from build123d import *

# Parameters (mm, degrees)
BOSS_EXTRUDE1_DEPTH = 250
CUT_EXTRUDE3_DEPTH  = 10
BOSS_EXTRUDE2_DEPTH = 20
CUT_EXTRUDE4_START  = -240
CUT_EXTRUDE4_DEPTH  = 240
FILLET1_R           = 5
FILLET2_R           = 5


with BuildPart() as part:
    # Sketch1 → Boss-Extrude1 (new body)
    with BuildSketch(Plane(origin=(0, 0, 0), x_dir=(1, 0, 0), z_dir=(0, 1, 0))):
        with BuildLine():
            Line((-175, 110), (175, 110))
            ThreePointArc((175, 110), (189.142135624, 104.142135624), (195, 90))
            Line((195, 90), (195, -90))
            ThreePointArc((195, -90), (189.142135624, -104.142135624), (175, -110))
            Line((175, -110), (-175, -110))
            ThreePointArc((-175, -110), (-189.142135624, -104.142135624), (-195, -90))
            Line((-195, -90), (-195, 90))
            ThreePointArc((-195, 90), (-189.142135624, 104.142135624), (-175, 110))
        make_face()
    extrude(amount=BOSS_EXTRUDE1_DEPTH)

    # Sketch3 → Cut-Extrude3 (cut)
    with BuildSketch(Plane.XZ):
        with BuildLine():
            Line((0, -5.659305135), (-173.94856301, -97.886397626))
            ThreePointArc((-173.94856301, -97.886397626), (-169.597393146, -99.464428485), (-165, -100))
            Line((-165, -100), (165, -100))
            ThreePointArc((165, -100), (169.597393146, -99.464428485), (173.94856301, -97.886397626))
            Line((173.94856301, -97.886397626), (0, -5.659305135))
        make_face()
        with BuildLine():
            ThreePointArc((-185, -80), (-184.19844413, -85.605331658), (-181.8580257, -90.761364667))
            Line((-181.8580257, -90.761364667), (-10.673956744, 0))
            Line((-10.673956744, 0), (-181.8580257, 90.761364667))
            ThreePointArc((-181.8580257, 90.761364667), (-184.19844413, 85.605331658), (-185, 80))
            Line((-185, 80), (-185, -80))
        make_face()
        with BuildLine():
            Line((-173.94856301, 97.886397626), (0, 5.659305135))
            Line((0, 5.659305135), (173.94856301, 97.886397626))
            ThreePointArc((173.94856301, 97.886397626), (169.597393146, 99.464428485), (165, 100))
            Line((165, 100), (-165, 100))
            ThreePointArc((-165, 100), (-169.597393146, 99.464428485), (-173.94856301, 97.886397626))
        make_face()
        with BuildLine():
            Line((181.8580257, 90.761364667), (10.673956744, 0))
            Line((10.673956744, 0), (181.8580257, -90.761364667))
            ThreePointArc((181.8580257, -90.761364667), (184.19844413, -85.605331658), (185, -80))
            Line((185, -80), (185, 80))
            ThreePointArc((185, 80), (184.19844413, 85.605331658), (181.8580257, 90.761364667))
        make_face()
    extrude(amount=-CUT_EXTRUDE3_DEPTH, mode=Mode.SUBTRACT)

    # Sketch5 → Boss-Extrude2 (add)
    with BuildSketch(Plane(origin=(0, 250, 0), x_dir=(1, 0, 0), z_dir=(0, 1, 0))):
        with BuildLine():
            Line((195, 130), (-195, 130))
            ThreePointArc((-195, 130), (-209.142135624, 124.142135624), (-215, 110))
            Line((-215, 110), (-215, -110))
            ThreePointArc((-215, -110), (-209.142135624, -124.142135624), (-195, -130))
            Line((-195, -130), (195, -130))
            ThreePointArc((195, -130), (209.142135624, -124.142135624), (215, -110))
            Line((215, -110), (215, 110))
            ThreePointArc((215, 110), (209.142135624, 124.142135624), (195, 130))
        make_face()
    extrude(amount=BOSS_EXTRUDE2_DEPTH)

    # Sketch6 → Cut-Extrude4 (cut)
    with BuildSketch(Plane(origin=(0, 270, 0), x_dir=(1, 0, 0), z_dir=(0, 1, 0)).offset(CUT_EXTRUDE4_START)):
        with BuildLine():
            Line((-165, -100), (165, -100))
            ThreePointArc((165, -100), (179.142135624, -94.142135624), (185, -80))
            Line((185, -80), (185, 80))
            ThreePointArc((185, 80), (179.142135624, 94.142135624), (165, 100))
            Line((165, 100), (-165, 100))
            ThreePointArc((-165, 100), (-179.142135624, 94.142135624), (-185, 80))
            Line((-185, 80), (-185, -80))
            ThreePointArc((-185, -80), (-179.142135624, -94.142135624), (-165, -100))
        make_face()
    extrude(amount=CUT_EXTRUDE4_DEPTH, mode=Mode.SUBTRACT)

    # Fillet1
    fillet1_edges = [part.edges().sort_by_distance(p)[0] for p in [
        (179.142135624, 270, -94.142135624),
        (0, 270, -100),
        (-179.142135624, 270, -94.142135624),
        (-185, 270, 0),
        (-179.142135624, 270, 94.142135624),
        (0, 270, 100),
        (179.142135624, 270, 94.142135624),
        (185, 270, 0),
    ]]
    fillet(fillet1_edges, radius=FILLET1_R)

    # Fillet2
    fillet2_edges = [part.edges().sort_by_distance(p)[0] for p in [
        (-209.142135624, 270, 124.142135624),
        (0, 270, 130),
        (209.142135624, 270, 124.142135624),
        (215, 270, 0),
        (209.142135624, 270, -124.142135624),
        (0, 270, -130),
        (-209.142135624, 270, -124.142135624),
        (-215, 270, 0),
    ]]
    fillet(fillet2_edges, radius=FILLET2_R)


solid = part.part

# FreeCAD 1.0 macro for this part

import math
import FreeCAD as App
import Part
import Sketcher
Q = App.Units.Quantity


def edges_at(feature, points):
    """Names of the edges that pass closest to the given points."""
    edges = feature.Shape.Edges
    near = lambda p: min(range(len(edges)), key=lambda i: edges[i].distToShape(Part.Vertex(*p))[0])
    return sorted({f"Edge{near(p) + 1}" for p in points})

doc = App.newDocument("Part")
body = doc.addObject("PartDesign::Body", "Body")

# Sketch on XZ plane
sketch1 = body.newObject("Sketcher::SketchObject", "Sketch")
sketch1.AttachmentSupport = (doc.getObject("XZ_Plane"), [""])
sketch1.MapMode = "FlatFace"
sketch1.addGeometry(Part.LineSegment(App.Vector(175, -110, 0), App.Vector(-175, -110, 0)), False)
sketch1.addGeometry(Part.ArcOfCircle(Part.Circle(App.Vector(-175, -90, 0), App.Vector(0, 0, 1), 20), math.radians(180), math.radians(270)), False)
sketch1.addGeometry(Part.LineSegment(App.Vector(-195, -90, 0), App.Vector(-195, 90, 0)), False)
sketch1.addGeometry(Part.ArcOfCircle(Part.Circle(App.Vector(-175, 90, 0), App.Vector(0, 0, 1), 20), math.radians(90), math.radians(180)), False)
sketch1.addGeometry(Part.LineSegment(App.Vector(-175, 110, 0), App.Vector(175, 110, 0)), False)
sketch1.addGeometry(Part.ArcOfCircle(Part.Circle(App.Vector(175, 90, 0), App.Vector(0, 0, 1), 20), math.radians(0), math.radians(90)), False)
sketch1.addGeometry(Part.LineSegment(App.Vector(195, 90, 0), App.Vector(195, -90, 0)), False)
sketch1.addGeometry(Part.ArcOfCircle(Part.Circle(App.Vector(175, -90, 0), App.Vector(0, 0, 1), 20), math.radians(-90), math.radians(0)), False)
sketch1.addConstraint(Sketcher.Constraint("Tangent", 0, 2, 1, 2))
sketch1.addConstraint(Sketcher.Constraint("Tangent", 1, 1, 2, 1))
sketch1.addConstraint(Sketcher.Constraint("Tangent", 2, 2, 3, 2))
sketch1.addConstraint(Sketcher.Constraint("Tangent", 3, 1, 4, 1))
sketch1.addConstraint(Sketcher.Constraint("Tangent", 4, 2, 5, 2))
sketch1.addConstraint(Sketcher.Constraint("Tangent", 5, 1, 6, 1))
sketch1.addConstraint(Sketcher.Constraint("Tangent", 6, 2, 7, 2))
sketch1.addConstraint(Sketcher.Constraint("Tangent", 7, 1, 0, 1))
sketch1.addConstraint(Sketcher.Constraint("Horizontal", 0))
sketch1.addConstraint(Sketcher.Constraint("Vertical", 2))
sketch1.addConstraint(Sketcher.Constraint("Horizontal", 4))
sketch1.addConstraint(Sketcher.Constraint("Vertical", 6))
sketch1.addConstraint(Sketcher.Constraint("Equal", 1, 3))
sketch1.addConstraint(Sketcher.Constraint("Equal", 3, 5))
sketch1.addConstraint(Sketcher.Constraint("Equal", 5, 7))
sketch1.addConstraint(Sketcher.Constraint("Symmetric", 1, 3, 5, 3, -1, 1))
sketch1.addConstraint(Sketcher.Constraint("Radius", 1, Q("20 mm")))
sketch1.addConstraint(Sketcher.Constraint("DistanceX", 0, 2, 0, 1, Q("350 mm")))
sketch1.addConstraint(Sketcher.Constraint("DistanceY", 2, 1, 2, 2, Q("180 mm")))
pad1 = body.newObject("PartDesign::Pad", "Pad")
pad1.Profile = sketch1
pad1.Length = 250
pad1.Reversed = True

# Sketch on XZ plane
sketch2 = body.newObject("Sketcher::SketchObject", "Sketch001")
sketch2.AttachmentSupport = (doc.getObject("XZ_Plane"), [""])
sketch2.MapMode = "FlatFace"
sketch2.addGeometry(Part.LineSegment(App.Vector(0, -6, 0), App.Vector(-174, -98, 0)), False)
sketch2.addGeometry(Part.ArcOfCircle(Part.Circle(App.Vector(-165, -80, 0), App.Vector(0, 0, 1), 20), math.radians(-117), math.radians(-90)), False)
sketch2.addGeometry(Part.LineSegment(App.Vector(-165, -100, 0), App.Vector(165, -100, 0)), False)
sketch2.addGeometry(Part.ArcOfCircle(Part.Circle(App.Vector(165, -80, 0), App.Vector(0, 0, 1), 20), math.radians(-90), math.radians(-63)), False)
sketch2.addGeometry(Part.LineSegment(App.Vector(174, -98, 0), App.Vector(0, -6, 0)), False)
sketch2.addGeometry(Part.ArcOfCircle(Part.Circle(App.Vector(-165, -80, 0), App.Vector(0, 0, 1), 20), math.radians(180), math.radians(213)), False)
sketch2.addGeometry(Part.LineSegment(App.Vector(-182, -91, 0), App.Vector(-11, 0, 0)), False)
sketch2.addGeometry(Part.LineSegment(App.Vector(-11, 0, 0), App.Vector(-182, 91, 0)), False)
sketch2.addGeometry(Part.ArcOfCircle(Part.Circle(App.Vector(-165, 80, 0), App.Vector(0, 0, 1), 20), math.radians(147), math.radians(180)), False)
sketch2.addGeometry(Part.LineSegment(App.Vector(-185, 80, 0), App.Vector(-185, -80, 0)), False)
sketch2.addGeometry(Part.LineSegment(App.Vector(-174, 98, 0), App.Vector(0, 6, 0)), False)
sketch2.addGeometry(Part.LineSegment(App.Vector(0, 6, 0), App.Vector(174, 98, 0)), False)
sketch2.addGeometry(Part.ArcOfCircle(Part.Circle(App.Vector(165, 80, 0), App.Vector(0, 0, 1), 20), math.radians(63), math.radians(90)), False)
sketch2.addGeometry(Part.LineSegment(App.Vector(165, 100, 0), App.Vector(-165, 100, 0)), False)
sketch2.addGeometry(Part.ArcOfCircle(Part.Circle(App.Vector(-165, 80, 0), App.Vector(0, 0, 1), 20), math.radians(90), math.radians(117)), False)
sketch2.addGeometry(Part.LineSegment(App.Vector(182, 91, 0), App.Vector(11, 0, 0)), False)
sketch2.addGeometry(Part.LineSegment(App.Vector(11, 0, 0), App.Vector(182, -91, 0)), False)
sketch2.addGeometry(Part.ArcOfCircle(Part.Circle(App.Vector(165, -80, 0), App.Vector(0, 0, 1), 20), math.radians(-33), math.radians(0)), False)
sketch2.addGeometry(Part.LineSegment(App.Vector(185, -80, 0), App.Vector(185, 80, 0)), False)
sketch2.addGeometry(Part.ArcOfCircle(Part.Circle(App.Vector(165, 80, 0), App.Vector(0, 0, 1), 20), math.radians(0), math.radians(33)), False)
sketch2.addConstraint(Sketcher.Constraint("Coincident", 0, 2, 1, 1))
sketch2.addConstraint(Sketcher.Constraint("Tangent", 1, 2, 2, 1))
sketch2.addConstraint(Sketcher.Constraint("Tangent", 2, 2, 3, 1))
sketch2.addConstraint(Sketcher.Constraint("Coincident", 3, 2, 4, 1))
sketch2.addConstraint(Sketcher.Constraint("Coincident", 4, 2, 0, 1))
sketch2.addConstraint(Sketcher.Constraint("Coincident", 5, 2, 6, 1))
sketch2.addConstraint(Sketcher.Constraint("Coincident", 6, 2, 7, 1))
sketch2.addConstraint(Sketcher.Constraint("Coincident", 7, 2, 8, 1))
sketch2.addConstraint(Sketcher.Constraint("Tangent", 8, 2, 9, 1))
sketch2.addConstraint(Sketcher.Constraint("Tangent", 9, 2, 5, 1))
sketch2.addConstraint(Sketcher.Constraint("Coincident", 10, 2, 11, 1))
sketch2.addConstraint(Sketcher.Constraint("Coincident", 11, 2, 12, 1))
sketch2.addConstraint(Sketcher.Constraint("Tangent", 12, 2, 13, 1))
sketch2.addConstraint(Sketcher.Constraint("Tangent", 13, 2, 14, 1))
sketch2.addConstraint(Sketcher.Constraint("Coincident", 14, 2, 10, 1))
sketch2.addConstraint(Sketcher.Constraint("Coincident", 15, 2, 16, 1))
sketch2.addConstraint(Sketcher.Constraint("Coincident", 16, 2, 17, 1))
sketch2.addConstraint(Sketcher.Constraint("Tangent", 17, 2, 18, 1))
sketch2.addConstraint(Sketcher.Constraint("Tangent", 18, 2, 19, 1))
sketch2.addConstraint(Sketcher.Constraint("Coincident", 19, 2, 15, 1))
sketch2.addConstraint(Sketcher.Constraint("Horizontal", 2))
sketch2.addConstraint(Sketcher.Constraint("Vertical", 9))
sketch2.addConstraint(Sketcher.Constraint("Horizontal", 13))
sketch2.addConstraint(Sketcher.Constraint("Vertical", 18))
sketch2.addConstraint(Sketcher.Constraint("Coincident", 5, 3, 1, 3))
sketch2.addConstraint(Sketcher.Constraint("Coincident", 14, 3, 8, 3))
sketch2.addConstraint(Sketcher.Constraint("Coincident", 17, 3, 3, 3))
sketch2.addConstraint(Sketcher.Constraint("Coincident", 19, 3, 12, 3))
sketch2.addConstraint(Sketcher.Constraint("Equal", 1, 3))
sketch2.addConstraint(Sketcher.Constraint("Equal", 3, 5))
sketch2.addConstraint(Sketcher.Constraint("Equal", 5, 8))
sketch2.addConstraint(Sketcher.Constraint("Equal", 8, 12))
sketch2.addConstraint(Sketcher.Constraint("Equal", 12, 14))
sketch2.addConstraint(Sketcher.Constraint("Equal", 14, 17))
sketch2.addConstraint(Sketcher.Constraint("Equal", 17, 19))
sketch2.addConstraint(Sketcher.Constraint("Symmetric", 3, 3, 8, 3, -1, 1))
sketch2.addConstraint(Sketcher.Constraint("Symmetric", 4, 2, 10, 2, -1, 1))
sketch2.addConstraint(Sketcher.Constraint("Symmetric", 6, 2, 15, 2, -1, 1))
sketch2.addConstraint(Sketcher.Constraint("PointOnObject", 4, 2, -2))
sketch2.addConstraint(Sketcher.Constraint("PointOnObject", 6, 2, -1))
sketch2.addConstraint(Sketcher.Constraint("Parallel", 0, 6))
sketch2.addConstraint(Sketcher.Constraint("Parallel", 4, 7))
sketch2.addConstraint(Sketcher.Constraint("Parallel", 7, 10))
sketch2.addConstraint(Sketcher.Constraint("Parallel", 6, 11))
sketch2.addConstraint(Sketcher.Constraint("Parallel", 11, 15))
sketch2.addConstraint(Sketcher.Constraint("Parallel", 10, 16))
sketch2.addConstraint(Sketcher.Constraint("Horizontal", 0, 2, 3, 2))
sketch2.addConstraint(Sketcher.Constraint("Radius", 1, Q("20 mm")))
sketch2.addConstraint(Sketcher.Constraint("DistanceX", 2, 1, 2, 2, Q("330 mm")))
sketch2.addConstraint(Sketcher.Constraint("DistanceY", 9, 2, 9, 1, Q("160 mm")))
sketch2.addConstraint(Sketcher.Constraint("Distance", 0, Q("196.885599 mm")))
sketch2.addConstraint(Sketcher.Constraint("DistanceY", 5, 2, 7, 2, Q("181.522729 mm")))
sketch2.addConstraint(Sketcher.Constraint("DistanceY", 4, 2, 10, 2, Q("11.31861 mm")))
pocket1 = body.newObject("PartDesign::Pocket", "Pocket")
pocket1.Profile = sketch2
pocket1.Length = 10

# Sketch on XZ plane
sketch3 = body.newObject("Sketcher::SketchObject", "Sketch002")
sketch3.AttachmentSupport = (doc.getObject("XZ_Plane"), [""])
sketch3.MapMode = "FlatFace"
sketch3.AttachmentOffset = App.Placement(App.Vector(0, 0, -250), App.Rotation())
sketch3.addGeometry(Part.LineSegment(App.Vector(195, -130, 0), App.Vector(-195, -130, 0)), False)
sketch3.addGeometry(Part.ArcOfCircle(Part.Circle(App.Vector(-195, -110, 0), App.Vector(0, 0, 1), 20), math.radians(180), math.radians(270)), False)
sketch3.addGeometry(Part.LineSegment(App.Vector(-215, -110, 0), App.Vector(-215, 110, 0)), False)
sketch3.addGeometry(Part.ArcOfCircle(Part.Circle(App.Vector(-195, 110, 0), App.Vector(0, 0, 1), 20), math.radians(90), math.radians(180)), False)
sketch3.addGeometry(Part.LineSegment(App.Vector(-195, 130, 0), App.Vector(195, 130, 0)), False)
sketch3.addGeometry(Part.ArcOfCircle(Part.Circle(App.Vector(195, 110, 0), App.Vector(0, 0, 1), 20), math.radians(0), math.radians(90)), False)
sketch3.addGeometry(Part.LineSegment(App.Vector(215, 110, 0), App.Vector(215, -110, 0)), False)
sketch3.addGeometry(Part.ArcOfCircle(Part.Circle(App.Vector(195, -110, 0), App.Vector(0, 0, 1), 20), math.radians(-90), math.radians(0)), False)
sketch3.addConstraint(Sketcher.Constraint("Tangent", 0, 2, 1, 2))
sketch3.addConstraint(Sketcher.Constraint("Tangent", 1, 1, 2, 1))
sketch3.addConstraint(Sketcher.Constraint("Tangent", 2, 2, 3, 2))
sketch3.addConstraint(Sketcher.Constraint("Tangent", 3, 1, 4, 1))
sketch3.addConstraint(Sketcher.Constraint("Tangent", 4, 2, 5, 2))
sketch3.addConstraint(Sketcher.Constraint("Tangent", 5, 1, 6, 1))
sketch3.addConstraint(Sketcher.Constraint("Tangent", 6, 2, 7, 2))
sketch3.addConstraint(Sketcher.Constraint("Tangent", 7, 1, 0, 1))
sketch3.addConstraint(Sketcher.Constraint("Horizontal", 0))
sketch3.addConstraint(Sketcher.Constraint("Vertical", 2))
sketch3.addConstraint(Sketcher.Constraint("Horizontal", 4))
sketch3.addConstraint(Sketcher.Constraint("Vertical", 6))
sketch3.addConstraint(Sketcher.Constraint("Equal", 1, 3))
sketch3.addConstraint(Sketcher.Constraint("Equal", 3, 5))
sketch3.addConstraint(Sketcher.Constraint("Equal", 5, 7))
sketch3.addConstraint(Sketcher.Constraint("Symmetric", 1, 3, 5, 3, -1, 1))
sketch3.addConstraint(Sketcher.Constraint("Radius", 1, Q("20 mm")))
sketch3.addConstraint(Sketcher.Constraint("DistanceX", 0, 2, 0, 1, Q("390 mm")))
sketch3.addConstraint(Sketcher.Constraint("DistanceY", 2, 1, 2, 2, Q("220 mm")))
pad2 = body.newObject("PartDesign::Pad", "Pad001")
pad2.Profile = sketch3
pad2.Length = 20
pad2.Reversed = True

# Sketch on XZ plane
sketch4 = body.newObject("Sketcher::SketchObject", "Sketch003")
sketch4.AttachmentSupport = (doc.getObject("XZ_Plane"), [""])
sketch4.MapMode = "FlatFace"
sketch4.AttachmentOffset = App.Placement(App.Vector(0, 0, -30), App.Rotation())
sketch4.addGeometry(Part.LineSegment(App.Vector(-165, 100, 0), App.Vector(165, 100, 0)), False)
sketch4.addGeometry(Part.ArcOfCircle(Part.Circle(App.Vector(165, 80, 0), App.Vector(0, 0, 1), 20), math.radians(0), math.radians(90)), False)
sketch4.addGeometry(Part.LineSegment(App.Vector(185, 80, 0), App.Vector(185, -80, 0)), False)
sketch4.addGeometry(Part.ArcOfCircle(Part.Circle(App.Vector(165, -80, 0), App.Vector(0, 0, 1), 20), math.radians(-90), math.radians(0)), False)
sketch4.addGeometry(Part.LineSegment(App.Vector(165, -100, 0), App.Vector(-165, -100, 0)), False)
sketch4.addGeometry(Part.ArcOfCircle(Part.Circle(App.Vector(-165, -80, 0), App.Vector(0, 0, 1), 20), math.radians(180), math.radians(270)), False)
sketch4.addGeometry(Part.LineSegment(App.Vector(-185, -80, 0), App.Vector(-185, 80, 0)), False)
sketch4.addGeometry(Part.ArcOfCircle(Part.Circle(App.Vector(-165, 80, 0), App.Vector(0, 0, 1), 20), math.radians(90), math.radians(180)), False)
sketch4.addConstraint(Sketcher.Constraint("Tangent", 0, 2, 1, 2))
sketch4.addConstraint(Sketcher.Constraint("Tangent", 1, 1, 2, 1))
sketch4.addConstraint(Sketcher.Constraint("Tangent", 2, 2, 3, 2))
sketch4.addConstraint(Sketcher.Constraint("Tangent", 3, 1, 4, 1))
sketch4.addConstraint(Sketcher.Constraint("Tangent", 4, 2, 5, 2))
sketch4.addConstraint(Sketcher.Constraint("Tangent", 5, 1, 6, 1))
sketch4.addConstraint(Sketcher.Constraint("Tangent", 6, 2, 7, 2))
sketch4.addConstraint(Sketcher.Constraint("Tangent", 7, 1, 0, 1))
sketch4.addConstraint(Sketcher.Constraint("Horizontal", 0))
sketch4.addConstraint(Sketcher.Constraint("Vertical", 2))
sketch4.addConstraint(Sketcher.Constraint("Horizontal", 4))
sketch4.addConstraint(Sketcher.Constraint("Vertical", 6))
sketch4.addConstraint(Sketcher.Constraint("Equal", 1, 3))
sketch4.addConstraint(Sketcher.Constraint("Equal", 3, 5))
sketch4.addConstraint(Sketcher.Constraint("Equal", 5, 7))
sketch4.addConstraint(Sketcher.Constraint("Symmetric", 1, 3, 5, 3, -1, 1))
sketch4.addConstraint(Sketcher.Constraint("Radius", 1, Q("20 mm")))
sketch4.addConstraint(Sketcher.Constraint("DistanceX", 0, 1, 0, 2, Q("330 mm")))
sketch4.addConstraint(Sketcher.Constraint("DistanceY", 2, 2, 2, 1, Q("160 mm")))
pocket2 = body.newObject("PartDesign::Pocket", "Pocket001")
pocket2.Profile = sketch4
pocket2.Length = 240
doc.recompute()

fillet = body.newObject("PartDesign::Fillet", "Fillet")
fillet.Base = (pocket2, edges_at(pocket2, [
    (179.142, 270, -94.142),
    (0, 270, -100),
    (-179.142, 270, -94.142),
    (-185, 270, 0),
    (-179.142, 270, 94.142),
    (0, 270, 100),
    (179.142, 270, 94.142),
    (185, 270, 0),
]))
fillet.Radius = 5
doc.recompute()

fillet2 = body.newObject("PartDesign::Fillet", "Fillet001")
fillet2.Base = (fillet, edges_at(fillet, [
    (-209.142, 270, 124.142),
    (0, 270, 130),
    (209.142, 270, 124.142),
    (215, 270, 0),
    (209.142, 270, -124.142),
    (0, 270, -130),
    (-209.142, 270, -124.142),
    (-215, 270, 0),
]))
fillet2.Radius = 5

doc.recompute()
